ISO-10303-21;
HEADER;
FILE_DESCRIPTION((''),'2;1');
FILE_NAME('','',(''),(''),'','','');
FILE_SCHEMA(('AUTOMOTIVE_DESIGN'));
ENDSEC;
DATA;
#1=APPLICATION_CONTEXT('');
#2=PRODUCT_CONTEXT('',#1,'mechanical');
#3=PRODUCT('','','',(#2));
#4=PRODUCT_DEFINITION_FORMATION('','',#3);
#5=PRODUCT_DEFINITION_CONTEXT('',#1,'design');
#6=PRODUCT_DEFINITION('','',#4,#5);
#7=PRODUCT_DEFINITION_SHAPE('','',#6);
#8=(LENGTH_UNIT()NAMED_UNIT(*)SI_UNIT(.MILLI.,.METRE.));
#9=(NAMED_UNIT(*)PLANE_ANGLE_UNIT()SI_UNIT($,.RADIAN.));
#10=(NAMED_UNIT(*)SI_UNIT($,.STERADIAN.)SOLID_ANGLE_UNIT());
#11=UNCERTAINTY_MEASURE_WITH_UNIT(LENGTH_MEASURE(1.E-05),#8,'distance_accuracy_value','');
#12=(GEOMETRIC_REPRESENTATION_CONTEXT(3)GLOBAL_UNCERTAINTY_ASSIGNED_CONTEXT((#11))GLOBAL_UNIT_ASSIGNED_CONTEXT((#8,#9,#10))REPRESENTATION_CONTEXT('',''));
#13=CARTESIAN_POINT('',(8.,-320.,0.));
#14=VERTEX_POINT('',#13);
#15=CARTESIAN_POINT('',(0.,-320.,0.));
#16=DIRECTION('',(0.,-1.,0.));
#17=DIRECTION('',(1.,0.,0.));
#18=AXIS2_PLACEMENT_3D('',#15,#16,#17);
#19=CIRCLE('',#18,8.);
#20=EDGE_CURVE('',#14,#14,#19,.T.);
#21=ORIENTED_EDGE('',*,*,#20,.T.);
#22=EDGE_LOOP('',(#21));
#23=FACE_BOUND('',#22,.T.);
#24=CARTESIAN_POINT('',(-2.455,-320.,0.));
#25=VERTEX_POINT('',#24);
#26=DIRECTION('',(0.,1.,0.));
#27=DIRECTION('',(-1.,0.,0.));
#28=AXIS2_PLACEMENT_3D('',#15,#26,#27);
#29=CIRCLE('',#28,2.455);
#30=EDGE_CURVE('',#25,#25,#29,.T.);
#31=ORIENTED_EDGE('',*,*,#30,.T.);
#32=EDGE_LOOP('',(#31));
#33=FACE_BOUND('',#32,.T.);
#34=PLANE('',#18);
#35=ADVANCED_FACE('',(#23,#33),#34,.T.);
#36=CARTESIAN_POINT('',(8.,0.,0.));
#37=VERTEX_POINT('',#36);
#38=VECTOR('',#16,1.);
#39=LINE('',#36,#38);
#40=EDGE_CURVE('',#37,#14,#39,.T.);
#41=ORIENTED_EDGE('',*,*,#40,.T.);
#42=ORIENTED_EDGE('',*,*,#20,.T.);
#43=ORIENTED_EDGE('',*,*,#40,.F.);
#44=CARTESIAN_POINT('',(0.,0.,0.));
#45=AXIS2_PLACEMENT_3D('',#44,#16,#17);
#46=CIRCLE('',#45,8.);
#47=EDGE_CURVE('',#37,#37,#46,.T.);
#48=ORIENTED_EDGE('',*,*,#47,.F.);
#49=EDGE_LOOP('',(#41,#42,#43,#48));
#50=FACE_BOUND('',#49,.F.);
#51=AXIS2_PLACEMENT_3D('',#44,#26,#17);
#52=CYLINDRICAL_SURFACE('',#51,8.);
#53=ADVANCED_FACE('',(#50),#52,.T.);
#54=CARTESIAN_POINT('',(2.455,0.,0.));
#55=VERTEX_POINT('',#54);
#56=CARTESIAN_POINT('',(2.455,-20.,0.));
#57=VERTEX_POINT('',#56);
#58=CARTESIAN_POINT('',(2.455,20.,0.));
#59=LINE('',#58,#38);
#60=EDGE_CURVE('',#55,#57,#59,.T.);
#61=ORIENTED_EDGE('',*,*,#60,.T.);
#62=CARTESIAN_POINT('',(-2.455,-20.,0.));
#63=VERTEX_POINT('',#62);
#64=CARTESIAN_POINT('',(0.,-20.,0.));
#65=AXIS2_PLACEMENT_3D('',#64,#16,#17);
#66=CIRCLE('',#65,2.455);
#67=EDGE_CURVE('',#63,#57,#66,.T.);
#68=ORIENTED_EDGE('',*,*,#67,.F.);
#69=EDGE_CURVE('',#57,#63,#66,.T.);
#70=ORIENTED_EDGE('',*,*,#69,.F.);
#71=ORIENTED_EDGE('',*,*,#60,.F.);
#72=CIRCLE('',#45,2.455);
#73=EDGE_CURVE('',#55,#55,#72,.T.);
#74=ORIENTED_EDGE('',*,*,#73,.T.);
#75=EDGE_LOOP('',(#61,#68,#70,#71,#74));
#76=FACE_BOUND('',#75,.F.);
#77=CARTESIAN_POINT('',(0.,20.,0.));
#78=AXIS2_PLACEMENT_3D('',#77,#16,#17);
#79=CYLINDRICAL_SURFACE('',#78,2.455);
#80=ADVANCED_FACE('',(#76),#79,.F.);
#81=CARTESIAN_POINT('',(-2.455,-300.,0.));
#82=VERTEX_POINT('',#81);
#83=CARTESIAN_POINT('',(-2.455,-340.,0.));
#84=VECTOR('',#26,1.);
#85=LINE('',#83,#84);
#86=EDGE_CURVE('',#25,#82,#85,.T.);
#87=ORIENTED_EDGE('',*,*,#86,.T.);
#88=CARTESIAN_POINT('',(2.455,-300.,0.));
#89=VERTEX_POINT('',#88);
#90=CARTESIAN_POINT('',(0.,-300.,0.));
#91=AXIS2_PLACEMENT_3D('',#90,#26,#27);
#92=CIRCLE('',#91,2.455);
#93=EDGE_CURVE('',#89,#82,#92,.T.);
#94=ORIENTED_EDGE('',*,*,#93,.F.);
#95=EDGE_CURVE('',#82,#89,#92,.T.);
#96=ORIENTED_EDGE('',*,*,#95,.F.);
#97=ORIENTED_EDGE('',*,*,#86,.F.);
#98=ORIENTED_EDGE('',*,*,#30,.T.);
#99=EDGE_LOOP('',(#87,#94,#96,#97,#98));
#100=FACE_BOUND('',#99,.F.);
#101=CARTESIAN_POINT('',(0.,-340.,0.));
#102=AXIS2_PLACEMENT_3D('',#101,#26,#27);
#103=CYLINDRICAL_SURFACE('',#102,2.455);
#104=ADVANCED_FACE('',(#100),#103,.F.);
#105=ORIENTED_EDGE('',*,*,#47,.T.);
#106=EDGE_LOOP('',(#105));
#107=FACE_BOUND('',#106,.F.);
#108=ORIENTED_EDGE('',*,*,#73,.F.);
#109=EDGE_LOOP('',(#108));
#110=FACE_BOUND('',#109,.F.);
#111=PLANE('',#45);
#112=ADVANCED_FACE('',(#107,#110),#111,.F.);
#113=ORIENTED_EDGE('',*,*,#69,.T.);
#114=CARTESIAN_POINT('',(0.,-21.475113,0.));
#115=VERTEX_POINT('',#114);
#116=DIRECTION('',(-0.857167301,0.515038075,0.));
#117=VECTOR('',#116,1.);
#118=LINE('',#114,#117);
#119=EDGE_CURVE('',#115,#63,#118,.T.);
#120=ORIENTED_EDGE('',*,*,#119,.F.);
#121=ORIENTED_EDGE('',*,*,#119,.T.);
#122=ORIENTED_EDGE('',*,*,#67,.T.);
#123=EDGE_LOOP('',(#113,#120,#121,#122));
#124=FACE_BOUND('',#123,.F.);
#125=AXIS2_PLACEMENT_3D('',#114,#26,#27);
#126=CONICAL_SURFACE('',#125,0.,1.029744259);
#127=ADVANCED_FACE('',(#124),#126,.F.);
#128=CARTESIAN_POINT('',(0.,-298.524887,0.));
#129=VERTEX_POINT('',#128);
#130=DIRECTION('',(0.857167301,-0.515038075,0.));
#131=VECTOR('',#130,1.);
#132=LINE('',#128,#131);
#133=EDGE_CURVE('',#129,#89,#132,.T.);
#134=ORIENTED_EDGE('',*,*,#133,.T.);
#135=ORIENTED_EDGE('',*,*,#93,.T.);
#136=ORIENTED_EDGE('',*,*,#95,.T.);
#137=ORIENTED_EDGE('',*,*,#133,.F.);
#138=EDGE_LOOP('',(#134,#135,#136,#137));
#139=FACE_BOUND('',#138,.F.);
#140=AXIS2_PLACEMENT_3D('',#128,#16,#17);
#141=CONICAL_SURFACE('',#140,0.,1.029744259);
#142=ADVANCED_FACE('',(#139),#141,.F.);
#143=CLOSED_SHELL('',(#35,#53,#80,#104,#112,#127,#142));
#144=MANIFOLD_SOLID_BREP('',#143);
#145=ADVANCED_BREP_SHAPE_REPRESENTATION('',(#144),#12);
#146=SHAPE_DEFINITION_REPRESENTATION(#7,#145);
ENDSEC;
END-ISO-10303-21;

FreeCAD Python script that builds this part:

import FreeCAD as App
import Part
import Sketcher

V = App.Vector

doc = App.newDocument("Part")
params = doc.addObject("Spreadsheet::Sheet", "Params")
for row, (alias, value) in enumerate([
    ("sketch1_diameter", "16 mm"),
    ("pad1_length", "320 mm"),
    ("sketch2_diameter", "4.91 mm"),
    ("hole_diameter", "4.91 mm"),
    ("hole_depth", "20 mm"),
    ("sketch3_diameter", "4.91 mm"),
    ("hole2_diameter", "4.91 mm"),
    ("hole2_depth", "20 mm"),
], start=1):
    params.set(f"A{row}", alias)
    params.set(f"B{row}", "=" + value)
    params.setAlias(f"B{row}", alias)

body = doc.addObject("PartDesign::Body", "Body")

# Sketch on XZ plane
sketch1 = body.newObject("Sketcher::SketchObject", "Sketch")
sketch1.AttachmentSupport = (doc.getObject("XZ_Plane"), [""])
sketch1.MapMode = "FlatFace"
sketch1.addGeometry(Part.Circle(V(0, 0, 0), V(0, 0, 1), 8), False)
sketch1.addConstraint(Sketcher.Constraint("Coincident", 0, 3, -1, 1))
sketch1.addConstraint(Sketcher.Constraint("Diameter", 0, 16.0))
sketch1.setExpression("Constraints[1]", "Params.sketch1_diameter")
pad1 = body.newObject("PartDesign::Pad", "Pad")
pad1.Profile = sketch1
pad1.setExpression("Length", "Params.pad1_length")

# Sketch on XZ plane
sketch2 = body.newObject("Sketcher::SketchObject", "Sketch001")
sketch2.AttachmentSupport = (doc.getObject("XZ_Plane"), [""])
sketch2.MapMode = "FlatFace"
sketch2.AttachmentOffset = App.Placement(V(0, 0, 320), App.Rotation())
sketch2.addGeometry(Part.Circle(V(0, 0, 0), V(0, 0, 1), 2.455), False)
sketch2.addConstraint(Sketcher.Constraint("Coincident", 0, 3, -1, 1))
sketch2.addConstraint(Sketcher.Constraint("Diameter", 0, 4.91))
sketch2.setExpression("Constraints[1]", "Params.sketch2_diameter")
doc.recompute()
hole = body.newObject("PartDesign::Hole", "Hole")
hole.Profile = sketch2
hole.ThreadType = "None"
hole.setExpression("Diameter", "Params.hole_diameter")
hole.DepthType = "Dimension"
hole.setExpression("Depth", "Params.hole_depth")
hole.DrillPoint = "Angled"
hole.DrillPointAngle = 118

# Sketch on XZ plane
sketch3 = body.newObject("Sketcher::SketchObject", "Sketch002")
sketch3.AttachmentSupport = (doc.getObject("XZ_Plane"), [""])
sketch3.MapMode = "FlatFace"
sketch3.addGeometry(Part.Circle(V(0, 0, 0), V(0, 0, 1), 2.455), False)
sketch3.addConstraint(Sketcher.Constraint("Coincident", 0, 3, -1, 1))
sketch3.addConstraint(Sketcher.Constraint("Diameter", 0, 4.91))
sketch3.setExpression("Constraints[1]", "Params.sketch3_diameter")
doc.recompute()
hole2 = body.newObject("PartDesign::Hole", "Hole001")
hole2.Profile = sketch3
hole2.ThreadType = "None"
hole2.setExpression("Diameter", "Params.hole2_diameter")
hole2.DepthType = "Dimension"
hole2.setExpression("Depth", "Params.hole2_depth")
hole2.DrillPoint = "Angled"
hole2.DrillPointAngle = 118
hole2.Reversed = True

doc.recompute()
